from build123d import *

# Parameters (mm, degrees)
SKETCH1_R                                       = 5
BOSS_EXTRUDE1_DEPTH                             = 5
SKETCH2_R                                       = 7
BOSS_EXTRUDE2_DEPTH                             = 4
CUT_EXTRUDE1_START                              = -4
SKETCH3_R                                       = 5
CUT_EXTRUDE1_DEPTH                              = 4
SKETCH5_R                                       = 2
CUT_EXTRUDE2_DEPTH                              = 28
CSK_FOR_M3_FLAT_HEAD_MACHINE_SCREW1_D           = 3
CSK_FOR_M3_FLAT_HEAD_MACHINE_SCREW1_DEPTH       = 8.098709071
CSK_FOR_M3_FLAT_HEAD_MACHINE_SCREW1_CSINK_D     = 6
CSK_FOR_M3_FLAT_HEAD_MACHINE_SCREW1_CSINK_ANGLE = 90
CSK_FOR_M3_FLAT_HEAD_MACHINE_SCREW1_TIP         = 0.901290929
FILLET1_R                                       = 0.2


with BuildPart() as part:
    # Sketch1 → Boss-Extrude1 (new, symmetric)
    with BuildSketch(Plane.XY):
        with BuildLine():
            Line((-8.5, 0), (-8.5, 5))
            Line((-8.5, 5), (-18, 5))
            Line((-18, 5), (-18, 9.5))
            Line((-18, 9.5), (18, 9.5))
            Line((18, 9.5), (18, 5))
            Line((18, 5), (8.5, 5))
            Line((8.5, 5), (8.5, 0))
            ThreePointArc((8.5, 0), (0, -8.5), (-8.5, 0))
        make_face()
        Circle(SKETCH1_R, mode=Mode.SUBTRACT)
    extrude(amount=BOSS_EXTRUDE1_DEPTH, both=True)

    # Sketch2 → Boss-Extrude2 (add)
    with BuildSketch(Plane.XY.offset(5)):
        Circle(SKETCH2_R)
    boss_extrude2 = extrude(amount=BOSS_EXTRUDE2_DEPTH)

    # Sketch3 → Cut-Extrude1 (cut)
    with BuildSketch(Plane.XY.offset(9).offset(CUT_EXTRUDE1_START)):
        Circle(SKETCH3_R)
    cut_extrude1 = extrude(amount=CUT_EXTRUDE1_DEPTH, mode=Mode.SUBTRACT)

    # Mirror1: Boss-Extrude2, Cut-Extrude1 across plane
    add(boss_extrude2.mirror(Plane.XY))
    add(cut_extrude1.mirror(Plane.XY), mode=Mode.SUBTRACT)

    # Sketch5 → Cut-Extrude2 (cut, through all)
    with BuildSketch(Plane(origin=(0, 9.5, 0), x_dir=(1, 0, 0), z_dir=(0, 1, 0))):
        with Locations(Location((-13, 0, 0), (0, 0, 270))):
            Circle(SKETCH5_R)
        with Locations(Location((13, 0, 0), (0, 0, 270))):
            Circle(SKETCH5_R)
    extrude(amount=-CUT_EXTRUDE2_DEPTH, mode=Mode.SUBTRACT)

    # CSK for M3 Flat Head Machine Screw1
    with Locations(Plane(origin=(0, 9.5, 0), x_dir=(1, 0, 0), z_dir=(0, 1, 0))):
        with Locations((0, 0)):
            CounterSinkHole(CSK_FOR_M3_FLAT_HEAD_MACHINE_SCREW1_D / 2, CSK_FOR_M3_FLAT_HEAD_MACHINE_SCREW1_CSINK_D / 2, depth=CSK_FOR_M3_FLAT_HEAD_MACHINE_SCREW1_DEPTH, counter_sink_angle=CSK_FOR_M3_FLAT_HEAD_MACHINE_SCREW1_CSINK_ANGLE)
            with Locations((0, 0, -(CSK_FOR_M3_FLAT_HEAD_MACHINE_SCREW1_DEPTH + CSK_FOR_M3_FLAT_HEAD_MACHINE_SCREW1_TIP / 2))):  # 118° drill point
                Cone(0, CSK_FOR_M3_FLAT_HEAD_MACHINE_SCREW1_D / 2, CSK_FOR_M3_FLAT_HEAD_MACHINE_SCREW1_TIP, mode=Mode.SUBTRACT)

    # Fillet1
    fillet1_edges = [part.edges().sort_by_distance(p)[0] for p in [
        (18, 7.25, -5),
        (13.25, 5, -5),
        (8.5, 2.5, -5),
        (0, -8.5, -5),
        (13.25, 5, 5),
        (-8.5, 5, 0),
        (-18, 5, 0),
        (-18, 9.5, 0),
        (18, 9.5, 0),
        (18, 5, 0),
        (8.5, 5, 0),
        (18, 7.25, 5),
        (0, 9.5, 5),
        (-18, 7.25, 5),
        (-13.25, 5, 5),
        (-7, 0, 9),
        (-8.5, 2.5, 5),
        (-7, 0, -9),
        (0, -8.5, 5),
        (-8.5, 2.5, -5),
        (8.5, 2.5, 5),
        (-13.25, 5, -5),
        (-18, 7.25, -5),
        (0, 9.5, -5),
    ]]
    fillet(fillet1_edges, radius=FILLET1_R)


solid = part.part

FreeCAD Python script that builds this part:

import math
import FreeCAD as App
import Part
import Sketcher
from FreeCAD import Vector
Q = App.Units.Quantity


def edges_at(feature, points):
    """Names of the edges that pass closest to the given points."""
    edges = feature.Shape.Edges
    near = lambda p: min(range(len(edges)), key=lambda i: edges[i].distToShape(Part.Vertex(*p))[0])
    return sorted({f"Edge{near(p) + 1}" for p in points})

doc = App.newDocument("Part")
body = doc.addObject("PartDesign::Body", "Body")

# Sketch on XY plane
sketch1 = doc.addObject("Sketcher::SketchObject", "Sketch")
body.addObject(sketch1)
sketch1.AttachmentSupport = (doc.XY_Plane, [""])
sketch1.MapMode = "FlatFace"
sketch1.addGeometry(Part.LineSegment(Vector(-8.5, 5, 0), Vector(-8.5, 0, 0)), False)
sketch1.addGeometry(Part.ArcOfCircle(Part.Circle(Vector(0, 0, 0), Vector(0, 0, 1), 8.5), math.radians(180), math.radians(360)), False)
sketch1.addGeometry(Part.LineSegment(Vector(8.5, 0, 0), Vector(8.5, 5, 0)), False)
sketch1.addGeometry(Part.LineSegment(Vector(8.5, 5, 0), Vector(18, 5, 0)), False)
sketch1.addGeometry(Part.LineSegment(Vector(18, 5, 0), Vector(18, 9.5, 0)), False)
sketch1.addGeometry(Part.LineSegment(Vector(18, 9.5, 0), Vector(-18, 9.5, 0)), False)
sketch1.addGeometry(Part.LineSegment(Vector(-18, 9.5, 0), Vector(-18, 5, 0)), False)
sketch1.addGeometry(Part.LineSegment(Vector(-18, 5, 0), Vector(-8.5, 5, 0)), False)
sketch1.addGeometry(Part.Circle(Vector(0, 0, 0), Vector(0, 0, 1), 5), False)
sketch1.addConstraint(Sketcher.Constraint("Tangent", 0, 2, 1, 1))
sketch1.addConstraint(Sketcher.Constraint("Tangent", 1, 2, 2, 1))
sketch1.addConstraint(Sketcher.Constraint("Coincident", 2, 2, 3, 1))
sketch1.addConstraint(Sketcher.Constraint("Coincident", 3, 2, 4, 1))
sketch1.addConstraint(Sketcher.Constraint("Coincident", 4, 2, 5, 1))
sketch1.addConstraint(Sketcher.Constraint("Coincident", 5, 2, 6, 1))
sketch1.addConstraint(Sketcher.Constraint("Coincident", 6, 2, 7, 1))
sketch1.addConstraint(Sketcher.Constraint("Coincident", 7, 2, 0, 1))
sketch1.addConstraint(Sketcher.Constraint("Vertical", 0))
sketch1.addConstraint(Sketcher.Constraint("Vertical", 2))
sketch1.addConstraint(Sketcher.Constraint("Horizontal", 3))
sketch1.addConstraint(Sketcher.Constraint("Vertical", 4))
sketch1.addConstraint(Sketcher.Constraint("Horizontal", 5))
sketch1.addConstraint(Sketcher.Constraint("Vertical", 6))
sketch1.addConstraint(Sketcher.Constraint("Horizontal", 7))
sketch1.addConstraint(Sketcher.Constraint("Coincident", 1, 3, -1, 1))
sketch1.addConstraint(Sketcher.Constraint("Coincident", 8, 3, -1, 1))
sketch1.addConstraint(Sketcher.Constraint("Symmetric", 3, 2, 6, 2, -2))
sketch1.addConstraint(Sketcher.Constraint("Diameter", 8, Q("10 mm")))
sketch1.addConstraint(Sketcher.Constraint("Radius", 1, Q("8.5 mm")))
sketch1.addConstraint(Sketcher.Constraint("DistanceX", 5, 2, 5, 1, Q("36 mm")))
sketch1.addConstraint(Sketcher.Constraint("DistanceY", 0, 2, 0, 1, Q("5 mm")))
sketch1.addConstraint(Sketcher.Constraint("DistanceY", 4, 1, 4, 2, Q("4.5 mm")))
pad1 = doc.addObject("PartDesign::Pad", "Pad")
body.addObject(pad1)
pad1.Profile = sketch1
pad1.Length = 10
pad1.Midplane = True

# Sketch on XY plane
sketch2 = doc.addObject("Sketcher::SketchObject", "Sketch001")
body.addObject(sketch2)
sketch2.AttachmentSupport = (doc.XY_Plane, [""])
sketch2.MapMode = "FlatFace"
sketch2.AttachmentOffset = App.Placement(Vector(0, 0, 5), App.Rotation())
sketch2.addGeometry(Part.Circle(Vector(0, 0, 0), Vector(0, 0, 1), 7), False)
sketch2.addConstraint(Sketcher.Constraint("Coincident", 0, 3, -1, 1))
sketch2.addConstraint(Sketcher.Constraint("Diameter", 0, Q("14 mm")))
pad2 = doc.addObject("PartDesign::Pad", "Pad001")
body.addObject(pad2)
pad2.Profile = sketch2
pad2.Length = 4

# Sketch on XY plane
sketch3 = doc.addObject("Sketcher::SketchObject", "Sketch002")
body.addObject(sketch3)
sketch3.AttachmentSupport = (doc.XY_Plane, [""])
sketch3.MapMode = "FlatFace"
sketch3.AttachmentOffset = App.Placement(Vector(0, 0, 5), App.Rotation())
sketch3.addGeometry(Part.Circle(Vector(0, 0, 0), Vector(0, 0, 1), 5), False)
sketch3.addConstraint(Sketcher.Constraint("Coincident", 0, 3, -1, 1))
sketch3.addConstraint(Sketcher.Constraint("Diameter", 0, Q("10 mm")))
pocket1 = doc.addObject("PartDesign::Pocket", "Pocket")
body.addObject(pocket1)
pocket1.Profile = sketch3
pocket1.Length = 4
pocket1.Reversed = True
doc.recompute()

mirrored = doc.addObject("PartDesign::Mirrored", "Mirrored")
body.addObject(mirrored)
mirrored.Originals = [pad2, pocket1]
mirrored.MirrorPlane = (doc.XY_Plane, [""])
body.Tip = mirrored

# Sketch on XZ plane
sketch4 = doc.addObject("Sketcher::SketchObject", "Sketch003")
body.addObject(sketch4)
sketch4.AttachmentSupport = (doc.XZ_Plane, [""])
sketch4.MapMode = "FlatFace"
sketch4.AttachmentOffset = App.Placement(Vector(0, 0, -9.5), App.Rotation())
sketch4.addGeometry(Part.Circle(Vector(-13, 0, 0), Vector(0, 0, 1), 2), False)
sketch4.addGeometry(Part.Circle(Vector(13, 0, 0), Vector(0, 0, 1), 2), False)
sketch4.addConstraint(Sketcher.Constraint("Equal", 0, 1))
sketch4.addConstraint(Sketcher.Constraint("Symmetric", 0, 3, 1, 3, -1, 1))
sketch4.addConstraint(Sketcher.Constraint("PointOnObject", 0, 3, -1))
sketch4.addConstraint(Sketcher.Constraint("Diameter", 0, Q("4 mm")))
sketch4.addConstraint(Sketcher.Constraint("DistanceX", 0, 3, -1, 1, Q("13 mm")))
pocket2 = doc.addObject("PartDesign::Pocket", "Pocket001")
body.addObject(pocket2)
pocket2.Profile = sketch4
pocket2.Type = "ThroughAll"
pocket2.Reversed = True

# Sketch on XZ plane
sketch5 = doc.addObject("Sketcher::SketchObject", "Sketch004")
body.addObject(sketch5)
sketch5.AttachmentSupport = (doc.XZ_Plane, [""])
sketch5.MapMode = "FlatFace"
sketch5.AttachmentOffset = App.Placement(Vector(0, 0, -9.5), App.Rotation())
sketch5.addGeometry(Part.Circle(Vector(0, 0, 0), Vector(0, 0, 1), 1.5), False)
sketch5.addConstraint(Sketcher.Constraint("Coincident", 0, 3, -1, 1))
sketch5.addConstraint(Sketcher.Constraint("Diameter", 0, Q("3 mm")))
doc.recompute()
hole = doc.addObject("PartDesign::Hole", "Hole")
body.addObject(hole)
hole.Profile = sketch5
hole.ThreadType = "None"
hole.Diameter = 3
hole.DepthType = "Dimension"
hole.Depth = 8.098709
hole.DrillPoint = "Angled"
hole.DrillPointAngle = 118
hole.HoleCutType = "Countersink"
hole.HoleCutDiameter = 6
hole.HoleCutCountersinkAngle = 90
hole.Reversed = True
doc.recompute()

fillet = doc.addObject("PartDesign::Fillet", "Fillet")
body.addObject(fillet)
fillet.Base = (hole, edges_at(hole, [
    (18, 7.25, -5),
    (13.25, 5, -5),
    (8.5, 2.5, -5),
    (0, -8.5, -5),
    (13.25, 5, 5),
    (-8.5, 5, 0),
    (-18, 5, 0),
    (-18, 9.5, 0),
    (18, 9.5, 0),
    (18, 5, 0),
    (8.5, 5, 0),
    (18, 7.25, 5),
    (0, 9.5, 5),
    (-18, 7.25, 5),
    (-13.25, 5, 5),
    (-7, 0, 9),
    (-8.5, 2.5, 5),
    (-7, 0, -9),
    (0, -8.5, 5),
    (-8.5, 2.5, -5),
    (8.5, 2.5, 5),
    (-13.25, 5, -5),
    (-18, 7.25, -5),
    (0, 9.5, -5),
]))
fillet.Radius = 0.2

doc.recompute()
